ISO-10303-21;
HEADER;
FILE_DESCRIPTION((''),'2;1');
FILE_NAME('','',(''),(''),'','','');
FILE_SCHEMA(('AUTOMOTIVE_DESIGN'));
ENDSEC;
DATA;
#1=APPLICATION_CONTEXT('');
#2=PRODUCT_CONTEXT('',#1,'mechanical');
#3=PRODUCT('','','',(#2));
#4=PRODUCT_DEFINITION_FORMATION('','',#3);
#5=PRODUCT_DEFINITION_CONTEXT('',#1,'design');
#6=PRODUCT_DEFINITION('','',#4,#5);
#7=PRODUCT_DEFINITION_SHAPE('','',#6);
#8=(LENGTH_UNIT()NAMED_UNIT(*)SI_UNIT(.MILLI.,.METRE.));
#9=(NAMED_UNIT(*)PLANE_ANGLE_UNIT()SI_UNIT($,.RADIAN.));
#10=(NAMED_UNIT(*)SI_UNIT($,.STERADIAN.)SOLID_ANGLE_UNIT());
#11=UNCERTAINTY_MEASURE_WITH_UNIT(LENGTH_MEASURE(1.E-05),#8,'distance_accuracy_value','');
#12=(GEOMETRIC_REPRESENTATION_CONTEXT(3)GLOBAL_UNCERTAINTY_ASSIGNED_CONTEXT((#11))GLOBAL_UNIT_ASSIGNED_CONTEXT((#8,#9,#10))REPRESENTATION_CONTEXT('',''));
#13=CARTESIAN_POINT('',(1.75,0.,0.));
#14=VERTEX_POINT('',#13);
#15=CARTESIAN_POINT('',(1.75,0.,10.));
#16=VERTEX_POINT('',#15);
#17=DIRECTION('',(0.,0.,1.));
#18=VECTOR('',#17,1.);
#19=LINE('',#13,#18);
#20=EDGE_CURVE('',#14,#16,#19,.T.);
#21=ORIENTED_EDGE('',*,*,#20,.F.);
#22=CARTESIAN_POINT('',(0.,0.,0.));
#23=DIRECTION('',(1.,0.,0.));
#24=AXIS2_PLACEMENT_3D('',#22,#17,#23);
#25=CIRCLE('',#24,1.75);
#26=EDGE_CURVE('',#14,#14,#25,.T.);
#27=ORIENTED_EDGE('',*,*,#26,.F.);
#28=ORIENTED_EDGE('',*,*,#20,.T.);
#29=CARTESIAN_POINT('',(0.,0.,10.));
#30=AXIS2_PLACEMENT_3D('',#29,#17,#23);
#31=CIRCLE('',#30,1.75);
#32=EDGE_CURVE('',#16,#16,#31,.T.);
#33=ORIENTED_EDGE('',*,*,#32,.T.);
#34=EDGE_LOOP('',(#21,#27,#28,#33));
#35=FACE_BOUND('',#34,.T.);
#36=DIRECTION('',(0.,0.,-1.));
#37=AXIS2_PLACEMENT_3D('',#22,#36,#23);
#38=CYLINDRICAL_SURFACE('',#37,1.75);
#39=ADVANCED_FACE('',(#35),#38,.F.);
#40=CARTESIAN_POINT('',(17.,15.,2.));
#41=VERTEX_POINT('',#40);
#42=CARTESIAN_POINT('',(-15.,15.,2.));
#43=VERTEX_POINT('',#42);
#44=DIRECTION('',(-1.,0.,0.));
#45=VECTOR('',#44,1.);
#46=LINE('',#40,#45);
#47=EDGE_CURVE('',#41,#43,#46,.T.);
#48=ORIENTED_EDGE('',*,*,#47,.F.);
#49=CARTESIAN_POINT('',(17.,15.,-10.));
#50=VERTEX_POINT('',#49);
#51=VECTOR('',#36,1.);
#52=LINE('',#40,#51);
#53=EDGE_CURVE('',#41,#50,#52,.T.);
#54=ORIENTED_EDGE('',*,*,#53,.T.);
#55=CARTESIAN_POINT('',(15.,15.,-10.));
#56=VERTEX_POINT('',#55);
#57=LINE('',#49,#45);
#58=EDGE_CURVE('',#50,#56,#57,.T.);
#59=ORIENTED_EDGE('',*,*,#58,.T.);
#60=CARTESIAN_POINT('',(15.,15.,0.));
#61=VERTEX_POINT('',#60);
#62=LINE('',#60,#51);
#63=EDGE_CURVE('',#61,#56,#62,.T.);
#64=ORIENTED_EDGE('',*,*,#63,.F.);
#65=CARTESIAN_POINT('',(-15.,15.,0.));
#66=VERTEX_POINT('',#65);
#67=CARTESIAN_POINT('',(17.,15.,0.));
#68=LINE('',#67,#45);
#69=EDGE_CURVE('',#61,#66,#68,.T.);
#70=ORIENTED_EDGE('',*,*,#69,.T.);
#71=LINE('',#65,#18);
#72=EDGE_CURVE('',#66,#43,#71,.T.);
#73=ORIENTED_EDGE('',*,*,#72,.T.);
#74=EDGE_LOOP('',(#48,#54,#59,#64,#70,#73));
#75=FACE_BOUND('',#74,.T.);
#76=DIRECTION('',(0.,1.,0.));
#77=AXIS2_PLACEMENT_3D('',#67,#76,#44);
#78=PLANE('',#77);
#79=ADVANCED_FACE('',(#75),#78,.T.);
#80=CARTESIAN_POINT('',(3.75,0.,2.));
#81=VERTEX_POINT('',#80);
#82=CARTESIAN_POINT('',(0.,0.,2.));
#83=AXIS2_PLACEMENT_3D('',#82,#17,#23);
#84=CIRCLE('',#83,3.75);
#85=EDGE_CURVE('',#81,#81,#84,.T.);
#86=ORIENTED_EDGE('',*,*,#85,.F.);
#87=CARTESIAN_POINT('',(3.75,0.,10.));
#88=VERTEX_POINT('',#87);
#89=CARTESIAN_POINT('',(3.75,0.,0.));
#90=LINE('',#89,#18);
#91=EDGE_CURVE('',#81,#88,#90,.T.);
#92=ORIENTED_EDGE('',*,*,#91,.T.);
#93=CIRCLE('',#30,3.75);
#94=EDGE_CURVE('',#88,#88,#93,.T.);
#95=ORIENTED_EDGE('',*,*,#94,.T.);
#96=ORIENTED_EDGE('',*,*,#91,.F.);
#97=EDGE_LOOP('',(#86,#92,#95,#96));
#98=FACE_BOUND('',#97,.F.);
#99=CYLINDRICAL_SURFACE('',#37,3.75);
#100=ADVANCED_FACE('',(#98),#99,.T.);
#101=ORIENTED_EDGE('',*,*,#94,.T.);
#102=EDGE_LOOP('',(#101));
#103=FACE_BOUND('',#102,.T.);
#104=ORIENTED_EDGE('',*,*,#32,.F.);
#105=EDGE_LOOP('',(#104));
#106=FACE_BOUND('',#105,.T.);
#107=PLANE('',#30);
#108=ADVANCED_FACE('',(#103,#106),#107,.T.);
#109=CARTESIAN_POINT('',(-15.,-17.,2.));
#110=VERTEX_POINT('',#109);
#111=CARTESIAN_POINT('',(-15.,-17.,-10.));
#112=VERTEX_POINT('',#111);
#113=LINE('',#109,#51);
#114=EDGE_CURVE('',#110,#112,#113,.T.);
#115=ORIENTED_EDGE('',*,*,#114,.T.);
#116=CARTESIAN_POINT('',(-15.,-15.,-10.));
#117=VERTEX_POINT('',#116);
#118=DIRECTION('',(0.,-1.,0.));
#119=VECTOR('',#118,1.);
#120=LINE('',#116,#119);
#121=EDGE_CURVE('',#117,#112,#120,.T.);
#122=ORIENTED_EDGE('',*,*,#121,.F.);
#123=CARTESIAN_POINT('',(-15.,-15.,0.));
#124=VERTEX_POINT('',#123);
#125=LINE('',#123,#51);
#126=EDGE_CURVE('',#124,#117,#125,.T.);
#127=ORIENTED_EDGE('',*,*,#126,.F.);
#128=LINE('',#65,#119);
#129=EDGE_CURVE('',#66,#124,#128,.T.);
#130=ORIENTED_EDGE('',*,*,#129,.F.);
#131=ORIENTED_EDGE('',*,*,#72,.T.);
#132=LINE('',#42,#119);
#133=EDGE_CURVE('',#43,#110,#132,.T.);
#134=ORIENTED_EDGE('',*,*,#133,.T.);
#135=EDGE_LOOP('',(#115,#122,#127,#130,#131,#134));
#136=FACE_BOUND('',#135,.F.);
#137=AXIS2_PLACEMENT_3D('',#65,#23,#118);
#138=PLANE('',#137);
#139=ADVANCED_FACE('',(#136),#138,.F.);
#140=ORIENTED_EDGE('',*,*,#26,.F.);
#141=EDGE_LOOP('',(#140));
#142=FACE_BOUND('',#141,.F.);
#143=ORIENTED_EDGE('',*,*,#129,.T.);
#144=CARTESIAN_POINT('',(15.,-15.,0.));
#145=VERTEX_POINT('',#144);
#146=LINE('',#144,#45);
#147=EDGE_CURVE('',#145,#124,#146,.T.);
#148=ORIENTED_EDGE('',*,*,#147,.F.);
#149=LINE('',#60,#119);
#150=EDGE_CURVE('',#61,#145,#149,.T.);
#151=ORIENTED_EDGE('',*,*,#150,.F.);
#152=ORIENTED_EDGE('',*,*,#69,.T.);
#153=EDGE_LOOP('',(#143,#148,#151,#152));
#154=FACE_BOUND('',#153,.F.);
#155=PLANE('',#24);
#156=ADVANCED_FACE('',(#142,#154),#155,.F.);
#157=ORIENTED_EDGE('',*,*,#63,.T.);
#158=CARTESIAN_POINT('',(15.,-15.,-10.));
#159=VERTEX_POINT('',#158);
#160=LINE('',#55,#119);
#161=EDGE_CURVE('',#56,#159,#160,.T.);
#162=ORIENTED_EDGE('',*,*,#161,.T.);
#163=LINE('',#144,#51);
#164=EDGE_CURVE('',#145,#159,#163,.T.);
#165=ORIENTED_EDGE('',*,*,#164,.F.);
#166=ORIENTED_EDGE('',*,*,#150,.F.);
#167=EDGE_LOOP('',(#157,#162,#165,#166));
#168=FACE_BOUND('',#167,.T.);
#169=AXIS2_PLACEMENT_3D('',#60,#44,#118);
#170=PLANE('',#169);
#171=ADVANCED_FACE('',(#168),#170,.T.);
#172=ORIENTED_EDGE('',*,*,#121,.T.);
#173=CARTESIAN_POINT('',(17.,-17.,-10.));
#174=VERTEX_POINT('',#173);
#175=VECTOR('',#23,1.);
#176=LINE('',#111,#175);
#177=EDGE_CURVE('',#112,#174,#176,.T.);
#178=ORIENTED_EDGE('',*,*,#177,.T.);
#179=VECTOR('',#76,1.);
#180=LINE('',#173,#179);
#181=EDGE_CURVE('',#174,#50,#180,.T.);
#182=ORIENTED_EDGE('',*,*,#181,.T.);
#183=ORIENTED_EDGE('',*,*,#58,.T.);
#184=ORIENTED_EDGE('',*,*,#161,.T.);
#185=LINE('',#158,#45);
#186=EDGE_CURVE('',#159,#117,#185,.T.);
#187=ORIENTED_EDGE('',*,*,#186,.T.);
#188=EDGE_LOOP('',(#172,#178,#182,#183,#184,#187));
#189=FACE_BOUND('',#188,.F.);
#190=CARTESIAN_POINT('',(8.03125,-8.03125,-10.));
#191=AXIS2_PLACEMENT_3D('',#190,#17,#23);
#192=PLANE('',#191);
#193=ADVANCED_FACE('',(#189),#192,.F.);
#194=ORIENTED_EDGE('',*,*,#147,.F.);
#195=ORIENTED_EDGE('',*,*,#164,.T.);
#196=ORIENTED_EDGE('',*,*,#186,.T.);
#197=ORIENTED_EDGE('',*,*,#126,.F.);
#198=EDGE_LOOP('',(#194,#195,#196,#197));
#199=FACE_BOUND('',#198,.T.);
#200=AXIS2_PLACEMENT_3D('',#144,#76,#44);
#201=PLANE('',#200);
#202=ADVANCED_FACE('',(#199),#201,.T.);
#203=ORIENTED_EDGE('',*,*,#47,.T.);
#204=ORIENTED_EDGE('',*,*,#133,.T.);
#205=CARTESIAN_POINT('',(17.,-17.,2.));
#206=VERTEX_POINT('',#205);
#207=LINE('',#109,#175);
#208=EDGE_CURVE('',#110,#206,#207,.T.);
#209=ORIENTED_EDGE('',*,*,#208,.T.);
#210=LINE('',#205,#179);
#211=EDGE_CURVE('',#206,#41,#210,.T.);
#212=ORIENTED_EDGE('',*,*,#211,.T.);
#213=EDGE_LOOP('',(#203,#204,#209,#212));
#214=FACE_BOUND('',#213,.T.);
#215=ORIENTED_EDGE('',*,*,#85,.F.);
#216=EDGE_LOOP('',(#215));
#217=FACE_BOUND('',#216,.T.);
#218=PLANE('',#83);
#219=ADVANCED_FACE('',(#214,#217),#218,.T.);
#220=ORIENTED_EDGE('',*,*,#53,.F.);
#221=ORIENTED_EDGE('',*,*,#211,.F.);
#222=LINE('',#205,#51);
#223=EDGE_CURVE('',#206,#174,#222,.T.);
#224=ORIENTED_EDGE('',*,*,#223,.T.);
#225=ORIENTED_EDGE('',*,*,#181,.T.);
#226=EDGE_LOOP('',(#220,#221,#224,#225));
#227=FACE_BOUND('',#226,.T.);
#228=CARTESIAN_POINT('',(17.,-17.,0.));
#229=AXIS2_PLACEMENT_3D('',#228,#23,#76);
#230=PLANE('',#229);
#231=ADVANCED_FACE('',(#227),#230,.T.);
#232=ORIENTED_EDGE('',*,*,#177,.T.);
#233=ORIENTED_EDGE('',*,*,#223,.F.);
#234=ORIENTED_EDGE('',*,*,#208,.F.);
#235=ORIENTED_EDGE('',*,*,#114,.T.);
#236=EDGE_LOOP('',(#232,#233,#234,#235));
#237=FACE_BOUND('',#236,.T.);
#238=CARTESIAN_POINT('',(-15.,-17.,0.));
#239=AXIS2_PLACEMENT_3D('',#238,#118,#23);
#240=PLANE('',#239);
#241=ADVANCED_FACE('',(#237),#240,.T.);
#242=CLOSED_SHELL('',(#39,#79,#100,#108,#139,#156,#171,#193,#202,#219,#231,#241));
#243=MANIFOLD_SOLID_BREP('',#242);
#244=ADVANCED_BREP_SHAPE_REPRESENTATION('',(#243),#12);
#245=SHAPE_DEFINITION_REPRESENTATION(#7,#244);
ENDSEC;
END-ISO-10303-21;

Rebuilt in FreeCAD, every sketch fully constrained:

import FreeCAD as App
import Part
import Sketcher

V = App.Vector
Q = App.Units.Quantity

doc = App.newDocument("Part")
params = doc.addObject("Spreadsheet::Sheet", "Params")
for row, (alias, value) in enumerate([
    ("sketch1_diameter", "7.5 mm"),
    ("sketch1_diameter2", "3.5 mm"),
    ("pad1_length", "10 mm"),
    ("sketch2_diameter", "7.5 mm"),
    ("sketch2_width", "32 mm"),
    ("pad2_length", "2 mm"),
    ("sketch3_width", "2 mm"),
    ("sketch3_width2", "30 mm"),
    ("pad3_length", "10 mm"),
], start=1):
    params.set(f"A{row}", alias)
    params.set(f"B{row}", "=" + value)
    params.setAlias(f"B{row}", alias)

body = doc.addObject("PartDesign::Body", "Body")

sketch1 = body.newObject("Sketcher::SketchObject", "Sketch")
sketch1.AttachmentSupport = (doc.getObject("XY_Plane"), [""])
sketch1.MapMode = "FlatFace"
sketch1.addGeometry([
    Part.Circle(V(0, 0, 0), V(0, 0, 1), 3.8),
    Part.Circle(V(0, 0, 0), V(0, 0, 1), 1.8),
], False)
sketch1.addConstraint([
    Sketcher.Constraint("Coincident", 0, 3, -1, 1),
    Sketcher.Constraint("Coincident", 1, 3, -1, 1),
    Sketcher.Constraint("Diameter", 0, Q("7.5 mm")),
    Sketcher.Constraint("Diameter", 1, Q("3.5 mm")),
])
sketch1.setExpression("Constraints[2]", "Params.sketch1_diameter")
sketch1.setExpression("Constraints[3]", "Params.sketch1_diameter2")
pad1 = body.newObject("PartDesign::Pad", "Pad")
pad1.Profile = sketch1
pad1.setExpression("Length", "Params.pad1_length")

sketch2 = body.newObject("Sketcher::SketchObject", "Sketch001")
sketch2.AttachmentSupport = (doc.getObject("XY_Plane"), [""])
sketch2.MapMode = "FlatFace"
sketch2.addGeometry([
    Part.LineSegment(V(-15, 15, 0), V(-15, -17, 0)),
    Part.LineSegment(V(-15, -17, 0), V(17, -17, 0)),
    Part.LineSegment(V(17, -17, 0), V(17, 15, 0)),
    Part.LineSegment(V(17, 15, 0), V(-15, 15, 0)),
    Part.Circle(V(0, 0, 0), V(0, 0, 1), 3.8),
], False)
sketch2.addConstraint([
    Sketcher.Constraint("Coincident", 0, 2, 1, 1),
    Sketcher.Constraint("Coincident", 1, 2, 2, 1),
    Sketcher.Constraint("Coincident", 2, 2, 3, 1),
    Sketcher.Constraint("Coincident", 3, 2, 0, 1),
    Sketcher.Constraint("Vertical", 0),
    Sketcher.Constraint("Horizontal", 1),
    Sketcher.Constraint("Vertical", 2),
    Sketcher.Constraint("Horizontal", 3),
    Sketcher.Constraint("Coincident", 4, 3, -1, 1),
    Sketcher.Constraint("Equal", 3, 0),
    Sketcher.Constraint("Diameter", 4, Q("7.5 mm")),
    Sketcher.Constraint("DistanceX", 1, 1, 1, 2, Q("32 mm")),
    Sketcher.Constraint("DistanceX", 0, 2, -1, 1, Q("15 mm")),
    Sketcher.Constraint("DistanceY", 0, 2, -1, 1, Q("17 mm")),
])
sketch2.setExpression("Constraints[10]", "Params.sketch2_diameter")
sketch2.setExpression("Constraints[11]", "Params.sketch2_width")
pad2 = body.newObject("PartDesign::Pad", "Pad001")
pad2.Profile = sketch2
pad2.setExpression("Length", "Params.pad2_length")

sketch3 = body.newObject("Sketcher::SketchObject", "Sketch002")
sketch3.AttachmentSupport = (doc.getObject("XY_Plane"), [""])
sketch3.MapMode = "FlatFace"
sketch3.addGeometry([
    Part.LineSegment(V(17, 15, 0), V(15, 15, 0)),
    Part.LineSegment(V(15, 15, 0), V(15, -15, 0)),
    Part.LineSegment(V(15, -15, 0), V(-15, -15, 0)),
    Part.LineSegment(V(-15, -15, 0), V(-15, -17, 0)),
    Part.LineSegment(V(-15, -17, 0), V(17, -17, 0)),
    Part.LineSegment(V(17, -17, 0), V(17, 15, 0)),
], False)
sketch3.addConstraint([
    Sketcher.Constraint("Coincident", 0, 2, 1, 1),
    Sketcher.Constraint("Coincident", 1, 2, 2, 1),
    Sketcher.Constraint("Coincident", 2, 2, 3, 1),
    Sketcher.Constraint("Coincident", 3, 2, 4, 1),
    Sketcher.Constraint("Coincident", 4, 2, 5, 1),
    Sketcher.Constraint("Coincident", 5, 2, 0, 1),
    Sketcher.Constraint("Horizontal", 0),
    Sketcher.Constraint("Vertical", 1),
    Sketcher.Constraint("Horizontal", 2),
    Sketcher.Constraint("Vertical", 3),
    Sketcher.Constraint("Horizontal", 4),
    Sketcher.Constraint("Vertical", 5),
    Sketcher.Constraint("Symmetric", 0, 2, 2, 2, -1, 1),
    Sketcher.Constraint("Equal", 2, 1),
    Sketcher.Constraint("Equal", 0, 3),
    Sketcher.Constraint("DistanceX", 0, 2, 0, 1, Q("2 mm")),
    Sketcher.Constraint("DistanceX", 2, 2, 2, 1, Q("30 mm")),
])
sketch3.setExpression("Constraints[15]", "Params.sketch3_width")
sketch3.setExpression("Constraints[16]", "Params.sketch3_width2")
pad3 = body.newObject("PartDesign::Pad", "Pad002")
pad3.Profile = sketch3
pad3.setExpression("Length", "Params.pad3_length")
pad3.Reversed = True

doc.recompute()
